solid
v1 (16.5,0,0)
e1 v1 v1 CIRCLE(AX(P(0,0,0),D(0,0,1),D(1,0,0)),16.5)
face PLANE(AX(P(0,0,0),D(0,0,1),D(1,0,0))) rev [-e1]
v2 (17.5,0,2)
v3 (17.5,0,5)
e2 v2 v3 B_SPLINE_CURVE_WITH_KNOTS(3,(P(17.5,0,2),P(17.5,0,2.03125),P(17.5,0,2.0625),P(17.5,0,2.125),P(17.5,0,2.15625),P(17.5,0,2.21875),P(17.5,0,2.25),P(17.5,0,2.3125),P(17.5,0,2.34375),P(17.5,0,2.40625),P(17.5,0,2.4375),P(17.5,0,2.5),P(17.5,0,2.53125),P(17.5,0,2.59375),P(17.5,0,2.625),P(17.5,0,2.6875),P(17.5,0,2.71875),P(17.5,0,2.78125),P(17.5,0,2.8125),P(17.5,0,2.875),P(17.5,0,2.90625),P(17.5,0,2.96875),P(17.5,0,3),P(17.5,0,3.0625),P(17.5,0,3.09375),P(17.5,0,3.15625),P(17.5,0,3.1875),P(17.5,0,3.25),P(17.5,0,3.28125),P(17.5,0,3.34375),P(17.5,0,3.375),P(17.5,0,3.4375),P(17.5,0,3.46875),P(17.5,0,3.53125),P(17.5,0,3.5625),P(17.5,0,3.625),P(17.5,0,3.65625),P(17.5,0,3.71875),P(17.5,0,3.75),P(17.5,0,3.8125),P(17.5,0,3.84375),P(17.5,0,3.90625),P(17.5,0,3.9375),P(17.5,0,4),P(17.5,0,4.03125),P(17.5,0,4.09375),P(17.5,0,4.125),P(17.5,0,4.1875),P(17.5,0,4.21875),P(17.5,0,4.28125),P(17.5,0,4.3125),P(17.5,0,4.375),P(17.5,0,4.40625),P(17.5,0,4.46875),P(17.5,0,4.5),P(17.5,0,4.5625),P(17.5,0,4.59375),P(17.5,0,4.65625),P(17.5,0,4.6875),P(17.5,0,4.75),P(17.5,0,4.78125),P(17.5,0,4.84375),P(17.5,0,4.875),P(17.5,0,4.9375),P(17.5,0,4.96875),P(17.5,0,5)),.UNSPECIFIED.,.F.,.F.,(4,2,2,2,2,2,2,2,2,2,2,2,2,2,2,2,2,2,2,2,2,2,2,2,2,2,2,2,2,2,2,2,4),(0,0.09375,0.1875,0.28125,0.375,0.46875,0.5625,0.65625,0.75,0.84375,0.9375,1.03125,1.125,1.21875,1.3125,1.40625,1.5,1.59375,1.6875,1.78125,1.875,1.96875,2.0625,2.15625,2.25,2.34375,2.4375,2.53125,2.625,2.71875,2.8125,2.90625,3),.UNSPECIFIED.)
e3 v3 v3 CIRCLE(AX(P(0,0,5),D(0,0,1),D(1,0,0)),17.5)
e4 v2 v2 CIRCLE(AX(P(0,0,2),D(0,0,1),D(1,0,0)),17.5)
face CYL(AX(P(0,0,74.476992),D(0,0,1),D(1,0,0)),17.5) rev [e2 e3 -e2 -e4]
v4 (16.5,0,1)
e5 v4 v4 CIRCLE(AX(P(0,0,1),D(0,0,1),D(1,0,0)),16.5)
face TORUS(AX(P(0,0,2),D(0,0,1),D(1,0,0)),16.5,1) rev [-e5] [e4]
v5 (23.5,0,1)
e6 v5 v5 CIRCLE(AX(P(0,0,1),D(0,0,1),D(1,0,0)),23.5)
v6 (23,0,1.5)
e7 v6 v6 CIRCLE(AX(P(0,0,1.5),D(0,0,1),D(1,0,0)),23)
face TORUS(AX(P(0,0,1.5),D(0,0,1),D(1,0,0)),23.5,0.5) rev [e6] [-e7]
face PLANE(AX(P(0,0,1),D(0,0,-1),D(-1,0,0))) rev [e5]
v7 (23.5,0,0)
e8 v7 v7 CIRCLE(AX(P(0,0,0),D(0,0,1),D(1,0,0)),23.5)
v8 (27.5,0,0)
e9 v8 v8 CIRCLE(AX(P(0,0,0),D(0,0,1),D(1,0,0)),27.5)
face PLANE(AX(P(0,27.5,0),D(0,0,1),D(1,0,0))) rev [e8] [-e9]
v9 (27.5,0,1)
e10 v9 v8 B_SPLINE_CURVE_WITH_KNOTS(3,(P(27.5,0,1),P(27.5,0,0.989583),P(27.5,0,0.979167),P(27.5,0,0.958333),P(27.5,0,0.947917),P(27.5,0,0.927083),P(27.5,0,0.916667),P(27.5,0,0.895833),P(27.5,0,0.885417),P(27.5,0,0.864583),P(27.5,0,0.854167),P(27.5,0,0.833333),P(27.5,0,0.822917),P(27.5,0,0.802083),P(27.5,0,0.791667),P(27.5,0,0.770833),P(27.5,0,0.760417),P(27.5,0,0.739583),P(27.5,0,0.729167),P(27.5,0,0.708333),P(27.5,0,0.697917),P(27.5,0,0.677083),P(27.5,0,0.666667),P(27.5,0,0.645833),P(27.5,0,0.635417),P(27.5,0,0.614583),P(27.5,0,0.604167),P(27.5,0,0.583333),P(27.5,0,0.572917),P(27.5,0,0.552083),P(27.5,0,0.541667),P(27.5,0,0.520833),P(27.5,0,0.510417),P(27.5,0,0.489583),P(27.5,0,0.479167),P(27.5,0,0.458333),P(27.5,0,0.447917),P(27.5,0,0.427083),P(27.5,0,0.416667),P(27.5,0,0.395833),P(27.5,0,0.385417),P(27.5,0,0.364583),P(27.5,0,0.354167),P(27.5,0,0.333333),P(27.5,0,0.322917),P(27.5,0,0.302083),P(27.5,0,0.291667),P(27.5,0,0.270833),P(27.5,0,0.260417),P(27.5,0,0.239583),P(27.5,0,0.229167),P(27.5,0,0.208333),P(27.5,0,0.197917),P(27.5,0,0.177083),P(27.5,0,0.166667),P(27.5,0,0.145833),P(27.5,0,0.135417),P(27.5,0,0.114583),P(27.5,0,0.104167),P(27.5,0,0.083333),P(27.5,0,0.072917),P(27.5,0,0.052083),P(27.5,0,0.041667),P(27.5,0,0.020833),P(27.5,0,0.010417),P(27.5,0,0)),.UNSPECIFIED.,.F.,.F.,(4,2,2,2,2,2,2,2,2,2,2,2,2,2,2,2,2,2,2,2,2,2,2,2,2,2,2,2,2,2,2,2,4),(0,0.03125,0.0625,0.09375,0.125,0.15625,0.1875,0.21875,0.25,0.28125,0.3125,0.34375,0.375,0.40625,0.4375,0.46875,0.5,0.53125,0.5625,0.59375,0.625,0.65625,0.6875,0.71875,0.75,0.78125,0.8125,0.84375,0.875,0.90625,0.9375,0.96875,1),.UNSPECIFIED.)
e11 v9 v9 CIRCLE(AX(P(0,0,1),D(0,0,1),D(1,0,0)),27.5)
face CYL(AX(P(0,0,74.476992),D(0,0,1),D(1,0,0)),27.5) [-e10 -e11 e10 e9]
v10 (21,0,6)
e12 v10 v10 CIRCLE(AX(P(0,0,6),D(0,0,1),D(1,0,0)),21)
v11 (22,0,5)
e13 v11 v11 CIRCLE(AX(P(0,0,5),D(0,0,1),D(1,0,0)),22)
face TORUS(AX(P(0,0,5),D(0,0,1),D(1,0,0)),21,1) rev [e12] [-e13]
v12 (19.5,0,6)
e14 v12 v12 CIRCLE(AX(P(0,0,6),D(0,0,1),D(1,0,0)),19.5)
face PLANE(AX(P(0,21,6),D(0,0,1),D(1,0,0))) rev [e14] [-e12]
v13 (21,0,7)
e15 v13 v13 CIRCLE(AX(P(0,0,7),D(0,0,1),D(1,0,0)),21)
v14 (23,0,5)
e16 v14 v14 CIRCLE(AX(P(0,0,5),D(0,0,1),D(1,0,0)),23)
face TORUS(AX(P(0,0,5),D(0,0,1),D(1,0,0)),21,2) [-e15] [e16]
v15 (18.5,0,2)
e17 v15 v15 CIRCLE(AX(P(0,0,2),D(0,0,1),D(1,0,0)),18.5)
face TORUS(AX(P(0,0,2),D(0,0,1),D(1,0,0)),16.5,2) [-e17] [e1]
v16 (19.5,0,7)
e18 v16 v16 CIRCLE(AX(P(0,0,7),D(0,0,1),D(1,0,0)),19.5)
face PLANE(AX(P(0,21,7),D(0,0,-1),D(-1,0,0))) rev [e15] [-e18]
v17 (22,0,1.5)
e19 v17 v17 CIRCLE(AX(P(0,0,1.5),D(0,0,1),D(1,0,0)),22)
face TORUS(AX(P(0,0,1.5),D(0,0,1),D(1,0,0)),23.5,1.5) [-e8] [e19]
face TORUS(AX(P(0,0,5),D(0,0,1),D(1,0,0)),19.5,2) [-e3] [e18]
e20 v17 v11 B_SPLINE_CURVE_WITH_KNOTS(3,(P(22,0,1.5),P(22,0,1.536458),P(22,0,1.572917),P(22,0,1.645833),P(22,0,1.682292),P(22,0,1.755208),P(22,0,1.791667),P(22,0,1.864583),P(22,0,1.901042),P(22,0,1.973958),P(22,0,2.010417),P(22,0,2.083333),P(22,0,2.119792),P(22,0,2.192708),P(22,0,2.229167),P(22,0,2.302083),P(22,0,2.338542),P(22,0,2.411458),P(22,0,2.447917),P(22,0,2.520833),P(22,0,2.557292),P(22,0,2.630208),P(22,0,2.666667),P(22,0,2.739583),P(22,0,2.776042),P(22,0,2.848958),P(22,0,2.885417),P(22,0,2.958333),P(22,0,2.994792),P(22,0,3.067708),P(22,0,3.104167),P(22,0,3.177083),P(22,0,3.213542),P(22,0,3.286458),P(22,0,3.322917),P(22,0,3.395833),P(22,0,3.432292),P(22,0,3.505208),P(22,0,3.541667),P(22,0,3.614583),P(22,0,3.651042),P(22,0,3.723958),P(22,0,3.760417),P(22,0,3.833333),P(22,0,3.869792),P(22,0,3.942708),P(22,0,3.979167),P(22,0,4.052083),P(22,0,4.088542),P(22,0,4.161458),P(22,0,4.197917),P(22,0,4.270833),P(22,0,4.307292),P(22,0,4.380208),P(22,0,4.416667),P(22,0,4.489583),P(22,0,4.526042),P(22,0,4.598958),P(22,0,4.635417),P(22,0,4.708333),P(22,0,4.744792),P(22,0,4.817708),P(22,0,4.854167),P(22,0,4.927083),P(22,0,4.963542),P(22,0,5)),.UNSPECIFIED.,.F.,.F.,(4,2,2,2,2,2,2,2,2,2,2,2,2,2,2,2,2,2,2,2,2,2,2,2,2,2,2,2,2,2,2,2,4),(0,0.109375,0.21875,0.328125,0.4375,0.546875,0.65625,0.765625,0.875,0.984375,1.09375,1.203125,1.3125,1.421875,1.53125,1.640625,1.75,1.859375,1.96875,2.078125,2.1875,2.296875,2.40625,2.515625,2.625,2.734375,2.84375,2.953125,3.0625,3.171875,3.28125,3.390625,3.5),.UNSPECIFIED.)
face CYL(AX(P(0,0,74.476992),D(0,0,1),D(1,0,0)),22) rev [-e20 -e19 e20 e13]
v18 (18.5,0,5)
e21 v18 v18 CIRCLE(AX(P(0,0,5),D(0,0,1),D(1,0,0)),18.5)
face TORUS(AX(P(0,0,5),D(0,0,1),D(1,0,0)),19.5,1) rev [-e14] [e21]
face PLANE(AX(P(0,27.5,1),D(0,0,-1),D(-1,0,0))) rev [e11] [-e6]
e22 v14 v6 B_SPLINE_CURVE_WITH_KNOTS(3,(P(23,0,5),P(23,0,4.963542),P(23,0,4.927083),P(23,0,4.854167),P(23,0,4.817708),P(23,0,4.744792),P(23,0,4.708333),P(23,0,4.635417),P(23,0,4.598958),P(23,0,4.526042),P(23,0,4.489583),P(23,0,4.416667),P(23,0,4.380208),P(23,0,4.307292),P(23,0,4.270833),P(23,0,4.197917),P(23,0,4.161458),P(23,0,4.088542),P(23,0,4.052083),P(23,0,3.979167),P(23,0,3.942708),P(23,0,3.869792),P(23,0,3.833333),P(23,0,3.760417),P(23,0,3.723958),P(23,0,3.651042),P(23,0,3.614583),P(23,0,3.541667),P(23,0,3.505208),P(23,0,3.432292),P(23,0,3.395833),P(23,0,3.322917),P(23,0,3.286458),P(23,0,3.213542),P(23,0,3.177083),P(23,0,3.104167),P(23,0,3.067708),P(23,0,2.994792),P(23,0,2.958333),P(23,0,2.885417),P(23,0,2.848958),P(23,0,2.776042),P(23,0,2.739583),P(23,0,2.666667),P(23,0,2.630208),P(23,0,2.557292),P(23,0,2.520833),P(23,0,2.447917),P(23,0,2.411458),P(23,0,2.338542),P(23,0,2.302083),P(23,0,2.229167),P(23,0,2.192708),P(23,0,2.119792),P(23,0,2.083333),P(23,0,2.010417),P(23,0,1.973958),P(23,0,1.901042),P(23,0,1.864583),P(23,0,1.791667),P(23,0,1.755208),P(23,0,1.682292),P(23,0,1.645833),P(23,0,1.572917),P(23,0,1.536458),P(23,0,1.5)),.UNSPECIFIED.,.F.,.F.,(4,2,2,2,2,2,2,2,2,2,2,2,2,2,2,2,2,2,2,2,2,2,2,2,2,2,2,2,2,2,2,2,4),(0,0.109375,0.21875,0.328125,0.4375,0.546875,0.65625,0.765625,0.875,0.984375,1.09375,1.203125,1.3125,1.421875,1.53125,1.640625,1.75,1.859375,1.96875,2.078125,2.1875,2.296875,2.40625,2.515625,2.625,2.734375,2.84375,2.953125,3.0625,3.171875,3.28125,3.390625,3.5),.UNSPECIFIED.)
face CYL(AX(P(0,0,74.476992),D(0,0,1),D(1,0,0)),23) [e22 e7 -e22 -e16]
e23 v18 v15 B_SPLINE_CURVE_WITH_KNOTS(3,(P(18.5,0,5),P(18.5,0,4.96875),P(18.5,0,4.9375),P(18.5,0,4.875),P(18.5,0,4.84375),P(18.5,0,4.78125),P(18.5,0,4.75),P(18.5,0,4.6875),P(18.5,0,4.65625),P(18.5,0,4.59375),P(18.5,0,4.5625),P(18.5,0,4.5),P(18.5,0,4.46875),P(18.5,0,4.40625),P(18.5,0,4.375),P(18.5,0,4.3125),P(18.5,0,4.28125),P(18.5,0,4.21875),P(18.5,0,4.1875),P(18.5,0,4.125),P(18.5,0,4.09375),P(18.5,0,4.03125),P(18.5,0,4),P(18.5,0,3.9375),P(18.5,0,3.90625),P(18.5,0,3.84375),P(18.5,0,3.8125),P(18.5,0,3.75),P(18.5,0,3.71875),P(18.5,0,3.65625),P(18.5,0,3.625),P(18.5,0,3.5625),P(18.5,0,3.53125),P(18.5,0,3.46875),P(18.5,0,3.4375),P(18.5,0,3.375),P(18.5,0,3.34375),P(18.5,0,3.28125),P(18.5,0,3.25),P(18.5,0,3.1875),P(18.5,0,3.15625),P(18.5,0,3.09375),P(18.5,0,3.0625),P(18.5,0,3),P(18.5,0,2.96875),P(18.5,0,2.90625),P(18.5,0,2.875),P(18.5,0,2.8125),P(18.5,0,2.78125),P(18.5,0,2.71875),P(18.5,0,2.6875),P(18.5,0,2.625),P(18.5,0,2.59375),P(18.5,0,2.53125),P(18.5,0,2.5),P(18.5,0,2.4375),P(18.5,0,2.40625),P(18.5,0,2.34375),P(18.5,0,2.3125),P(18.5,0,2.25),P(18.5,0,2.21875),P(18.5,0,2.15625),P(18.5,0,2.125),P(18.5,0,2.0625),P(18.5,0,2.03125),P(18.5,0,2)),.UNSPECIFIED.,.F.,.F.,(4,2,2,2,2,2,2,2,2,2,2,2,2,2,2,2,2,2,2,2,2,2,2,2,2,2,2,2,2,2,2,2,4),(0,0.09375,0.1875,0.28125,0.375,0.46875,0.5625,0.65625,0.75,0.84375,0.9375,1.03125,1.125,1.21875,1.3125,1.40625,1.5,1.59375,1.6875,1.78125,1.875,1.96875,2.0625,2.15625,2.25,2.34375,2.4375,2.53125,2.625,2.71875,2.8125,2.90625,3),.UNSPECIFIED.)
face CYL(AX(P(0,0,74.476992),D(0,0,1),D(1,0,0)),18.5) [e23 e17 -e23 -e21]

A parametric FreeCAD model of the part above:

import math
import FreeCAD as App
import Part
import Sketcher

V = App.Vector

doc = App.newDocument("Part")
params = doc.addObject("Spreadsheet::Sheet", "Params")
for row, (alias, value) in enumerate([
    ("sketch1_radius", "2 mm"),
    ("sketch1_radius2", "1 mm"),
    ("sketch1_radius3", "0.5 mm"),
    ("sketch1_width", "4 mm"),
    ("sketch1_height", "3 mm"),
    ("revolution_angle", "360 deg"),
], start=1):
    params.set(f"A{row}", alias)
    params.set(f"B{row}", "=" + value)
    params.setAlias(f"B{row}", alias)

body = doc.addObject("PartDesign::Body", "Body")

sketch1 = body.newObject("Sketcher::SketchObject", "Sketch")
sketch1.AttachmentSupport = (doc.getObject("YZ_Plane"), [""])
sketch1.MapMode = "FlatFace"
sketch1.addGeometry([
    Part.LineSegment(V(27.5, 1, 0), V(23.5, 1, 0)),
    Part.ArcOfCircle(Part.Circle(V(23.5, 1.5, 0), V(0, 0, 1), 0.5), math.radians(180), math.radians(270)),
    Part.LineSegment(V(23, 1.5, 0), V(23, 5, 0)),
    Part.ArcOfCircle(Part.Circle(V(21, 5, 0), V(0, 0, 1), 2), math.radians(0), math.radians(90)),
    Part.LineSegment(V(21, 7, 0), V(19.5, 7, 0)),
    Part.ArcOfCircle(Part.Circle(V(19.5, 5, 0), V(0, 0, 1), 2), math.radians(90), math.radians(180)),
    Part.LineSegment(V(17.5, 5, 0), V(17.5, 2, 0)),
    Part.ArcOfCircle(Part.Circle(V(16.5, 2, 0), V(0, 0, 1), 1), math.radians(-90), math.radians(0)),
    Part.LineSegment(V(16.5, 1, 0), V(0, 1, 0)),
    Part.LineSegment(V(0, 1, 0), V(0, 0, 0)),
    Part.LineSegment(V(0, 0, 0), V(16.5, 0, 0)),
    Part.ArcOfCircle(Part.Circle(V(16.5, 2, 0), V(0, 0, 1), 2), math.radians(-90), math.radians(0)),
    Part.LineSegment(V(18.5, 2, 0), V(18.5, 5, 0)),
    Part.ArcOfCircle(Part.Circle(V(19.5, 5, 0), V(0, 0, 1), 1), math.radians(90), math.radians(180)),
    Part.LineSegment(V(19.5, 6, 0), V(21, 6, 0)),
    Part.ArcOfCircle(Part.Circle(V(21, 5, 0), V(0, 0, 1), 1), math.radians(0), math.radians(90)),
    Part.LineSegment(V(22, 5, 0), V(22, 1.5, 0)),
    Part.ArcOfCircle(Part.Circle(V(23.5, 1.5, 0), V(0, 0, 1), 1.5), math.radians(180), math.radians(270)),
    Part.LineSegment(V(23.5, 0, 0), V(27.5, 0, 0)),
    Part.LineSegment(V(27.5, 0, 0), V(27.5, 1, 0)),
], False)
sketch1.addConstraint([
    Sketcher.Constraint("Tangent", 0, 2, 1, 2),
    Sketcher.Constraint("Tangent", 1, 1, 2, 1),
    Sketcher.Constraint("Tangent", 2, 2, 3, 1),
    Sketcher.Constraint("Tangent", 3, 2, 4, 1),
    Sketcher.Constraint("Tangent", 4, 2, 5, 1),
    Sketcher.Constraint("Tangent", 5, 2, 6, 1),
    Sketcher.Constraint("Tangent", 6, 2, 7, 2),
    Sketcher.Constraint("Tangent", 7, 1, 8, 1),
    Sketcher.Constraint("Coincident", 8, 2, 9, 1),
    Sketcher.Constraint("Coincident", 9, 2, 10, 1),
    Sketcher.Constraint("Tangent", 10, 2, 11, 1),
    Sketcher.Constraint("Tangent", 11, 2, 12, 1),
    Sketcher.Constraint("Tangent", 12, 2, 13, 2),
    Sketcher.Constraint("Tangent", 13, 1, 14, 1),
    Sketcher.Constraint("Tangent", 14, 2, 15, 2),
    Sketcher.Constraint("Tangent", 15, 1, 16, 1),
    Sketcher.Constraint("Tangent", 16, 2, 17, 1),
    Sketcher.Constraint("Tangent", 17, 2, 18, 1),
    Sketcher.Constraint("Coincident", 18, 2, 19, 1),
    Sketcher.Constraint("Coincident", 19, 2, 0, 1),
    Sketcher.Constraint("Horizontal", 0),
    Sketcher.Constraint("Vertical", 2),
    Sketcher.Constraint("Horizontal", 4),
    Sketcher.Constraint("Vertical", 6),
    Sketcher.Constraint("Horizontal", 8),
    Sketcher.Constraint("Vertical", 9),
    Sketcher.Constraint("Horizontal", 10),
    Sketcher.Constraint("Vertical", 12),
    Sketcher.Constraint("Horizontal", 14),
    Sketcher.Constraint("Vertical", 16),
    Sketcher.Constraint("Horizontal", 18),
    Sketcher.Constraint("Vertical", 19),
    Sketcher.Constraint("Coincident", 9, 2, -1, 1),
    Sketcher.Constraint("Coincident", 11, 3, 7, 3),
    Sketcher.Constraint("Coincident", 13, 3, 5, 3),
    Sketcher.Constraint("Coincident", 15, 3, 3, 3),
    Sketcher.Constraint("Coincident", 17, 3, 1, 3),
    Sketcher.Constraint("Equal", 3, 5),
    Sketcher.Constraint("Equal", 5, 11),
    Sketcher.Constraint("PointOnObject", 17, 2, -1),
    Sketcher.Constraint("Radius", 3, 2.0),
    Sketcher.Constraint("Radius", 7, 1.0),
    Sketcher.Constraint("Radius", 1, 0.5),
    Sketcher.Constraint("DistanceX", 0, 2, 0, 1, 4.0),
    Sketcher.Constraint("DistanceY", 6, 2, 6, 1, 3.0),
    Sketcher.Constraint("DistanceX", 4, 2, 4, 1, 1.5),
    Sketcher.Constraint("DistanceX", 8, 2, 8, 1, 16.5),
])
sketch1.setExpression("Constraints[40]", "Params.sketch1_radius")
sketch1.setExpression("Constraints[41]", "Params.sketch1_radius2")
sketch1.setExpression("Constraints[42]", "Params.sketch1_radius3")
sketch1.setExpression("Constraints[43]", "Params.sketch1_width")
sketch1.setExpression("Constraints[44]", "Params.sketch1_height")
revolution = body.newObject("PartDesign::Revolution", "Revolution")
revolution.Profile = sketch1
revolution.ReferenceAxis = (sketch1, ["V_Axis"])
revolution.setExpression("Angle", "Params.revolution_angle")

doc.recompute()
